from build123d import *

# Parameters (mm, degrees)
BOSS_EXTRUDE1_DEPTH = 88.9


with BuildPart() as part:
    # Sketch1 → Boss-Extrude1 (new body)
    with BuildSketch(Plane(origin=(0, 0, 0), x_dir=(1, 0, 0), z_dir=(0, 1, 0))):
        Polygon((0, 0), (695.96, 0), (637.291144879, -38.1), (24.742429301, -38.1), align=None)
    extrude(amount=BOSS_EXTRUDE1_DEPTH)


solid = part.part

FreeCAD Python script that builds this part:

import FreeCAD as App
import Part
import Sketcher
from FreeCAD import Vector
Q = App.Units.Quantity


def add_polygon(sketch, points):
    """Adds a closed chain of lines whose ends are joined by coincident constraints."""
    first, n = sketch.GeometryCount, len(points)
    for a, b in zip(points, points[1:] + points[:1]):
        sketch.addGeometry(Part.LineSegment(App.Vector(*a, 0), App.Vector(*b, 0)), False)
    for i in range(n):
        sketch.addConstraint(Sketcher.Constraint("Coincident", first + i, 2, first + (i + 1) % n, 1))

doc = App.newDocument("Part")
params = doc.addObject("Spreadsheet::Sheet", "Params")
for row, (alias, value) in enumerate([
    ("sketch1_width", "27.4 in"),
    ("pad1_length", "3.5 in"),
], start=1):
    params.set(f"A{row}", alias)
    params.set(f"B{row}", "=" + value)
    params.setAlias(f"B{row}", alias)

body = doc.addObject("PartDesign::Body", "Body")

# Sketch on XZ plane
sketch1 = body.newObject("Sketcher::SketchObject", "Sketch")
sketch1.AttachmentSupport = (doc.getObject("XZ_Plane"), [""])
sketch1.MapMode = "FlatFace"
add_polygon(sketch1, [(695.96, 0), (0, 0), (24.742429, 38.1), (637.291145, 38.1)])  # lines 0-3
sketch1.addConstraint([
    Sketcher.Constraint("Horizontal", 0),
    Sketcher.Constraint("Horizontal", 2),
    Sketcher.Constraint("Coincident", 0, 2, -1, 1),
    Sketcher.Constraint("Perpendicular", 1, 3),
    Sketcher.Constraint("DistanceX", 0, 2, 0, 1, Q("27.4 in")),
    Sketcher.Constraint("Angle", 1, Q("57 deg")),
    Sketcher.Constraint("DistanceY", -1, 1, 1, 2, Q("1.5 in")),
])
sketch1.setExpression("Constraints[8]", "Params.sketch1_width")
pad1 = body.newObject("PartDesign::Pad", "Pad")
pad1.Profile = sketch1
pad1.setExpression("Length", "Params.pad1_length")
pad1.Reversed = True

doc.recompute()
